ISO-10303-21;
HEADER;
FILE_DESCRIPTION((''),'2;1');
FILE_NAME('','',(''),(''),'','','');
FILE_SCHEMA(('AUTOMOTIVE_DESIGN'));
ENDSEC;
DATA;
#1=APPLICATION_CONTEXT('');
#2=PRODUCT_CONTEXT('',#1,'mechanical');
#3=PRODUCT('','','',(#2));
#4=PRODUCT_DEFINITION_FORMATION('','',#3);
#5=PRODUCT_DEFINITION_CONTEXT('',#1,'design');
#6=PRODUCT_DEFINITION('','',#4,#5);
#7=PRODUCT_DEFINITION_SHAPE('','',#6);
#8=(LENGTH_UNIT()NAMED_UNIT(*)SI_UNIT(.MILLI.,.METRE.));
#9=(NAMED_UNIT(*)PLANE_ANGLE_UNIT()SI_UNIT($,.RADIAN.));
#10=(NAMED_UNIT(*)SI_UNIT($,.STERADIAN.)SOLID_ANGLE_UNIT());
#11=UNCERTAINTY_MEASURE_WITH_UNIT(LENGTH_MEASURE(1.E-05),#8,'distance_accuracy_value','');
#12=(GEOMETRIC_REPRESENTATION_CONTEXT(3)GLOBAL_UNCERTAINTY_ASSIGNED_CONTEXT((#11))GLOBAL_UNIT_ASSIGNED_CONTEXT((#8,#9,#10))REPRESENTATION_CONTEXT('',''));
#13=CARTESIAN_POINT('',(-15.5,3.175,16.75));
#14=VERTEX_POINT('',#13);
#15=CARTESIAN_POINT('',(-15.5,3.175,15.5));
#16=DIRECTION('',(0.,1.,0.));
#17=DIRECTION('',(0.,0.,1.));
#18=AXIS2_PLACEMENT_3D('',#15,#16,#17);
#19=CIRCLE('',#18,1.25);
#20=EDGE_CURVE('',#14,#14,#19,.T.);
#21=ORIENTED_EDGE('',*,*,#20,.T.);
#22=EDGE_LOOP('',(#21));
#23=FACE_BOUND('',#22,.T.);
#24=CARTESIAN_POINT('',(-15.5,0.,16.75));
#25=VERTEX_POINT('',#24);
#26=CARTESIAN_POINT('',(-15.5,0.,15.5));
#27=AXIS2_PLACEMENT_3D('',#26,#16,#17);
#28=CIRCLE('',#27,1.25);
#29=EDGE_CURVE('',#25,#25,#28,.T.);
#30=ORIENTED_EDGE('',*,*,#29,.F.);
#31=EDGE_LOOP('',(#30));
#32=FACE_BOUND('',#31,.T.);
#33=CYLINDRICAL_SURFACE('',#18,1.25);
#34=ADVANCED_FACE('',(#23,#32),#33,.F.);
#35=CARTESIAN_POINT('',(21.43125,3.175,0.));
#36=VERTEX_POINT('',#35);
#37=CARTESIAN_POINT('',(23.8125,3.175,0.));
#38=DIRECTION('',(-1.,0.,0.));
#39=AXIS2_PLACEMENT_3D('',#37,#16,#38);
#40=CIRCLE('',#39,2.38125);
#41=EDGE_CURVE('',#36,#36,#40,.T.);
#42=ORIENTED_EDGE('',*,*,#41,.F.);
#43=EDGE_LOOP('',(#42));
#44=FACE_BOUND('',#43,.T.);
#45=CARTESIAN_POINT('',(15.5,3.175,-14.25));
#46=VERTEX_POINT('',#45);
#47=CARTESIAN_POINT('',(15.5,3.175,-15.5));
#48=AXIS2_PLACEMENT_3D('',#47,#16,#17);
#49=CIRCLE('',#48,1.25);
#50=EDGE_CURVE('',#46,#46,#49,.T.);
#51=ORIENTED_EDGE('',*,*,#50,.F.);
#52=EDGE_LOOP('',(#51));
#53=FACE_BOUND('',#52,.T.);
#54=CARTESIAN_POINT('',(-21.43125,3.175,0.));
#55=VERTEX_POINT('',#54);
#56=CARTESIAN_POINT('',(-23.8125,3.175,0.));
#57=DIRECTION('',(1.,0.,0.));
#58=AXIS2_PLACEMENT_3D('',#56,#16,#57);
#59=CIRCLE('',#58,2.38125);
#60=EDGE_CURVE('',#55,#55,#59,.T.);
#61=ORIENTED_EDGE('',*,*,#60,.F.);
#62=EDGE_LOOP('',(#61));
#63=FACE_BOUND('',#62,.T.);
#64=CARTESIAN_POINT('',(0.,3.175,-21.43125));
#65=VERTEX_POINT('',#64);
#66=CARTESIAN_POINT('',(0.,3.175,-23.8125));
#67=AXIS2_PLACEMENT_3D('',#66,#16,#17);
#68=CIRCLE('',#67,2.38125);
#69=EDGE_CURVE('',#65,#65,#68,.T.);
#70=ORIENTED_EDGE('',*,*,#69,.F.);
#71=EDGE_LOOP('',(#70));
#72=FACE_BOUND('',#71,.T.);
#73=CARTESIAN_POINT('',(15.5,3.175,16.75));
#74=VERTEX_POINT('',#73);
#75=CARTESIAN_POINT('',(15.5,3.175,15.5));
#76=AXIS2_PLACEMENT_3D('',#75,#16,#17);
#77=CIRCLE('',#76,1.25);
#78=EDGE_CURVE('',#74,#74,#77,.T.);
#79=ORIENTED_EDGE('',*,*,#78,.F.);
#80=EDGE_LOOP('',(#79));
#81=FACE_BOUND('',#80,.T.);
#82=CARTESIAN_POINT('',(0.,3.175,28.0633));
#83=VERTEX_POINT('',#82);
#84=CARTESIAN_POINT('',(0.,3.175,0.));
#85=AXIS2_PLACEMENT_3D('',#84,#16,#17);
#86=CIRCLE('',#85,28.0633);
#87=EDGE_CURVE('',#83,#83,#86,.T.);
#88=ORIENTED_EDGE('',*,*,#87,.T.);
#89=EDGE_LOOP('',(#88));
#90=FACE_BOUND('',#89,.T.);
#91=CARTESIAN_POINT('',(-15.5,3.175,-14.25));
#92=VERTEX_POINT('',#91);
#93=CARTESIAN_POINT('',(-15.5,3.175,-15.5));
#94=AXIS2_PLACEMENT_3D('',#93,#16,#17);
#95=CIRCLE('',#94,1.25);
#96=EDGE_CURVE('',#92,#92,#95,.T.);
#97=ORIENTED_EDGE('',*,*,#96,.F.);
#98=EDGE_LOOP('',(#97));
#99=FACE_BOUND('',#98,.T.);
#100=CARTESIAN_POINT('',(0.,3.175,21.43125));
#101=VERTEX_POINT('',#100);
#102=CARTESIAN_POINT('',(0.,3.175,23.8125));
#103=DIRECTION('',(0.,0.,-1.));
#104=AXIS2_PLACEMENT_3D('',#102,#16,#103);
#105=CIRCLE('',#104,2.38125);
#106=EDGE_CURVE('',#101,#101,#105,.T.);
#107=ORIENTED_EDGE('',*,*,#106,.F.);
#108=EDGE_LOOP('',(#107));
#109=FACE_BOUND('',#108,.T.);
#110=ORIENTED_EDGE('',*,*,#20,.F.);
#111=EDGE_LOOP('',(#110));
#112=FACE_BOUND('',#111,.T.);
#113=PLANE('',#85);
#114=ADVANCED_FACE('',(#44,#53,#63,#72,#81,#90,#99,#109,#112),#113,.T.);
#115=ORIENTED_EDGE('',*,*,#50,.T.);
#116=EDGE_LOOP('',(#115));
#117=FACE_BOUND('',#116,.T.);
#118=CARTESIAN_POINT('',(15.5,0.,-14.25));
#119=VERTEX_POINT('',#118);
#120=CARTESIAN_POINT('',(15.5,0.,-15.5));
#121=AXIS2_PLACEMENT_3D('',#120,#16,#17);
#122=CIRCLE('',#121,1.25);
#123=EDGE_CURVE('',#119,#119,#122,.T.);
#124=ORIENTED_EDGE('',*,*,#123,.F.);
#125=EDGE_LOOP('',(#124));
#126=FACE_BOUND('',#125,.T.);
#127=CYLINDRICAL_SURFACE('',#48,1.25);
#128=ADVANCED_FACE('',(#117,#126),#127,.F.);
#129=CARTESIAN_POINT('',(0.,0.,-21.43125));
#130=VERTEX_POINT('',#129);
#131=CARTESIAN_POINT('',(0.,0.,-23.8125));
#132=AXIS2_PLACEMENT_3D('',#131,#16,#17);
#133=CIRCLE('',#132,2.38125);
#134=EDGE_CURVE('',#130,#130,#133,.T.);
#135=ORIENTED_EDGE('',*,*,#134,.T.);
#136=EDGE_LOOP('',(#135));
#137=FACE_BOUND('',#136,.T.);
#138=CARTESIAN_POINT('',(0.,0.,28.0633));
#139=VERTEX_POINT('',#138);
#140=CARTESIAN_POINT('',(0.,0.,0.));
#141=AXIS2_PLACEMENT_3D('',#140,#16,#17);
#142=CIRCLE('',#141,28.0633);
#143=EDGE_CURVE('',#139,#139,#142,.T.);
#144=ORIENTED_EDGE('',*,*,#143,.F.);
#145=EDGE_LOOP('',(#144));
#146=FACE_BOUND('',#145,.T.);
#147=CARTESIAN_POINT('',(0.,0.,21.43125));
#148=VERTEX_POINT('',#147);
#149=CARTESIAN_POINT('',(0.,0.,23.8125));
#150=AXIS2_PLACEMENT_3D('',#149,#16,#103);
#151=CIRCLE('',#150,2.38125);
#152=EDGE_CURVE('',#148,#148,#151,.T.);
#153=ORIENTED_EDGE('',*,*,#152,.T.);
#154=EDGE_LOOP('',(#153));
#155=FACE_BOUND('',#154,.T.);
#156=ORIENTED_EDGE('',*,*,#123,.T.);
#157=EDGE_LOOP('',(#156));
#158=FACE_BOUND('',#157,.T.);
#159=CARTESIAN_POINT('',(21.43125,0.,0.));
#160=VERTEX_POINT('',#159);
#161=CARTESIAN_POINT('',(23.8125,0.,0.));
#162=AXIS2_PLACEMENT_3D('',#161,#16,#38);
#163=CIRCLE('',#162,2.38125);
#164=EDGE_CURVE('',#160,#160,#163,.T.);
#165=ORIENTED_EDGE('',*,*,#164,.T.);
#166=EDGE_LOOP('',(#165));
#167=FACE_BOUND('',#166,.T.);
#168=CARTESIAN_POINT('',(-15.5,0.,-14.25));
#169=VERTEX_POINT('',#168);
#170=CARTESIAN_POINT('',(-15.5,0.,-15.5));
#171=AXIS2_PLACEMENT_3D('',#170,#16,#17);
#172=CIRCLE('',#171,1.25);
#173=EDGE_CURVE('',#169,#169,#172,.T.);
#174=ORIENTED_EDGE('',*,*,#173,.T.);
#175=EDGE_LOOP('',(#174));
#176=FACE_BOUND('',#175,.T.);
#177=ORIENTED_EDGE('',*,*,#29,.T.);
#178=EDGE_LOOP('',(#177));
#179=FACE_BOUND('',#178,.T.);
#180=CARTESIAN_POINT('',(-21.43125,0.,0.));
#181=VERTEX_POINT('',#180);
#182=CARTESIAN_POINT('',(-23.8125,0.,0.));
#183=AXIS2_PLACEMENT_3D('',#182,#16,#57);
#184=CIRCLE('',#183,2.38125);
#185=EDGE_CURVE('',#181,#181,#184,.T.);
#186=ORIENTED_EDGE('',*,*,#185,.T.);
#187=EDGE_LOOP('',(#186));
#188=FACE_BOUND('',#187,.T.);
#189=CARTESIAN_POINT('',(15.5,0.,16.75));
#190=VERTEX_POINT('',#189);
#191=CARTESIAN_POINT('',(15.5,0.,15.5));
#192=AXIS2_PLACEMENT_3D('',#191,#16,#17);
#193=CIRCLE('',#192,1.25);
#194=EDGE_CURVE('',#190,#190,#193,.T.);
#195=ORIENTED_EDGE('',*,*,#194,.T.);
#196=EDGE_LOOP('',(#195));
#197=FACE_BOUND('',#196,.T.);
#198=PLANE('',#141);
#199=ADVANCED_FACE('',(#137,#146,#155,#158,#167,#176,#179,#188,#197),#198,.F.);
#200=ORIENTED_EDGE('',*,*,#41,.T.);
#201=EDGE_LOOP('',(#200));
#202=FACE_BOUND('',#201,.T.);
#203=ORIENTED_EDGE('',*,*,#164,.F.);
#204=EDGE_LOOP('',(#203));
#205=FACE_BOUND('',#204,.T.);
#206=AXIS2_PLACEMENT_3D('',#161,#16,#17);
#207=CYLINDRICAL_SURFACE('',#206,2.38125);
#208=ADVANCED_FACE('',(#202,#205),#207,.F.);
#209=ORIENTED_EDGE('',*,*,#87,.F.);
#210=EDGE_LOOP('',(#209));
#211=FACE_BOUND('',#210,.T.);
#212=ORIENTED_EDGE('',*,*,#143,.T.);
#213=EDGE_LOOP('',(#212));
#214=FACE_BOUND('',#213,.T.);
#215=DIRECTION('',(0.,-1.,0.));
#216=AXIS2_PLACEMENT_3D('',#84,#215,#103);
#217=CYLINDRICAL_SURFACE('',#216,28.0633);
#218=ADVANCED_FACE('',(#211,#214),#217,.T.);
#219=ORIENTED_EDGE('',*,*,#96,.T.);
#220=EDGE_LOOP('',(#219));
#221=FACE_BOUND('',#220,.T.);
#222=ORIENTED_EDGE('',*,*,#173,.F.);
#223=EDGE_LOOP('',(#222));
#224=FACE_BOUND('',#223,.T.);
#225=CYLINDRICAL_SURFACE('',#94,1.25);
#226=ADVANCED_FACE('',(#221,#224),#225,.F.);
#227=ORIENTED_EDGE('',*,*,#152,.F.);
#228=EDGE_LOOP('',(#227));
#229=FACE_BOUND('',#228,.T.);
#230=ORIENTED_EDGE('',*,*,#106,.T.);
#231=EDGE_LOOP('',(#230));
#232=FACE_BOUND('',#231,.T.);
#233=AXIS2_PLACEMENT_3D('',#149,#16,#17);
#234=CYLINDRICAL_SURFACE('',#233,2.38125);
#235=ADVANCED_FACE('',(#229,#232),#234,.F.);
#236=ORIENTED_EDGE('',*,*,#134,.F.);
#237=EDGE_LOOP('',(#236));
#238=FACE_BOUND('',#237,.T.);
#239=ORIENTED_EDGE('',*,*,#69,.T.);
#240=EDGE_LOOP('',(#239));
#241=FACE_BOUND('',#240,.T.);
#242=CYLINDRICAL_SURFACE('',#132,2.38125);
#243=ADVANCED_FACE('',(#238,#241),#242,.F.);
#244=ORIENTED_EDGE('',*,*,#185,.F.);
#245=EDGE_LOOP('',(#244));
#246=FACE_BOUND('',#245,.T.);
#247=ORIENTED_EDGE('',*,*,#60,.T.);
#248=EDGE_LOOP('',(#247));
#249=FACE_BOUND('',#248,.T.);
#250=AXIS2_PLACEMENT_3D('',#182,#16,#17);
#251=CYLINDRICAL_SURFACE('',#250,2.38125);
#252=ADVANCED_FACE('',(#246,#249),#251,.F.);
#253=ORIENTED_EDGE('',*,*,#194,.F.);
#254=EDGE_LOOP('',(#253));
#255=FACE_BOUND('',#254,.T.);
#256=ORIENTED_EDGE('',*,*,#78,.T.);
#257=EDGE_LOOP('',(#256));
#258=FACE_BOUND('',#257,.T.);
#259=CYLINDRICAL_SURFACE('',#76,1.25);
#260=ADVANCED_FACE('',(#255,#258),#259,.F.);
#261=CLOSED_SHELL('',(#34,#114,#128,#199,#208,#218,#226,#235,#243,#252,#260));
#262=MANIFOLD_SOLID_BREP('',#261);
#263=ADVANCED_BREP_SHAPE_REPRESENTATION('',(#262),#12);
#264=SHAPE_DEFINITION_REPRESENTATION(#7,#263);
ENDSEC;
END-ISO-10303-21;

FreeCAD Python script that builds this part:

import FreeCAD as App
import Part
import Sketcher

V = App.Vector
Q = App.Units.Quantity

doc = App.newDocument("Part")
params = doc.addObject("Spreadsheet::Sheet", "Params")
for row, (alias, value) in enumerate([
    ("pad1_length", "0.125 in"),
    ("hole_diameter", "2.5 mm"),
    ("hole_depth", "0.3 in"),
    ("sketch3_diameter", "0.1875 in"),
], start=1):
    params.set(f"A{row}", alias)
    params.set(f"B{row}", "=" + value)
    params.setAlias(f"B{row}", alias)

body = doc.addObject("PartDesign::Body", "Body")

# Sketch on XZ plane
sketch1 = doc.addObject("Sketcher::SketchObject", "Sketch")
body.addObject(sketch1)
sketch1.AttachmentSupport = (doc.XZ_Plane, [""])
sketch1.MapMode = "FlatFace"
sketch1.addGeometry(Part.Circle(V(0, 0, 0), V(0, 0, 1), 28.0633), False)
sketch1.addConstraint([
    Sketcher.Constraint("Coincident", 0, 3, -1, 1),
    Sketcher.Constraint("Diameter", 0, Q("56.126601 mm")),
])
pad1 = doc.addObject("PartDesign::Pad", "Pad")
body.addObject(pad1)
pad1.Profile = sketch1
pad1.setExpression("Length", "Params.pad1_length")
pad1.Reversed = True

# Sketch on XZ plane
sketch2 = doc.addObject("Sketcher::SketchObject", "Sketch001")
body.addObject(sketch2)
sketch2.AttachmentSupport = (doc.XZ_Plane, [""])
sketch2.MapMode = "FlatFace"
sketch2.AttachmentOffset = App.Placement(V(0, 0, -0.125 * 25.4), App.Rotation())
sketch2.addGeometry([
    Part.Circle(V(-15.5, -15.5, 0), V(0, 0, 1), 1.25),
    Part.Circle(V(15.5, 15.5, 0), V(0, 0, 1), 1.25),
    Part.Circle(V(15.5, -15.5, 0), V(0, 0, 1), 1.25),
    Part.Circle(V(-15.5, 15.5, 0), V(0, 0, 1), 1.25),
], False)
sketch2.addConstraint([
    Sketcher.Constraint("Equal", 0, 1),
    Sketcher.Constraint("Equal", 1, 2),
    Sketcher.Constraint("Equal", 2, 3),
    Sketcher.Constraint("Symmetric", 0, 3, 1, 3, -1, 1),
    Sketcher.Constraint("Symmetric", 2, 3, 3, 3, -1, 1),
    Sketcher.Constraint("Symmetric", 0, 3, 2, 3, -2),
    Sketcher.Constraint("Diameter", 0, Q("2.5 mm")),
    Sketcher.Constraint("DistanceX", 0, 3, -1, 1, Q("15.5 mm")),
    Sketcher.Constraint("DistanceY", 0, 3, -1, 1, Q("15.5 mm")),
])
doc.recompute()
hole = doc.addObject("PartDesign::Hole", "Hole")
body.addObject(hole)
hole.Profile = sketch2
hole.ThreadType = "None"
hole.setExpression("Diameter", "Params.hole_diameter")
hole.DepthType = "Dimension"
hole.setExpression("Depth", "Params.hole_depth")
hole.DrillPoint = "Angled"
hole.DrillPointAngle = 118
hole.Reversed = True

# Sketch on XZ plane
sketch3 = doc.addObject("Sketcher::SketchObject", "Sketch002")
body.addObject(sketch3)
sketch3.AttachmentSupport = (doc.XZ_Plane, [""])
sketch3.MapMode = "FlatFace"
sketch3.AttachmentOffset = App.Placement(V(0, 0, -0.125 * 25.4), App.Rotation())
sketch3.addGeometry(Part.Circle(V(0, -23.8125, 0), V(0, 0, 1), 2.38125), False)
sketch3.addConstraint([
    Sketcher.Constraint("PointOnObject", 0, 3, -2),
    Sketcher.Constraint("Diameter", 0, Q("0.1875 in")),
    Sketcher.Constraint("DistanceY", 0, 3, -1, 1, Q("0.9375 in")),
])
sketch3.setExpression("Constraints[1]", "Params.sketch3_diameter")
pocket1 = doc.addObject("PartDesign::Pocket", "Pocket")
body.addObject(pocket1)
pocket1.Profile = sketch3
pocket1.Type = "ThroughAll"
pocket1.Reversed = True
doc.recompute()

polarpattern = doc.addObject("PartDesign::PolarPattern", "PolarPattern")
body.addObject(polarpattern)
polarpattern.Originals = [pocket1]
polarpattern.Axis = (doc.Y_Axis, [""])
polarpattern.Angle = 360
polarpattern.Occurrences = 4
body.Tip = polarpattern

doc.recompute()
